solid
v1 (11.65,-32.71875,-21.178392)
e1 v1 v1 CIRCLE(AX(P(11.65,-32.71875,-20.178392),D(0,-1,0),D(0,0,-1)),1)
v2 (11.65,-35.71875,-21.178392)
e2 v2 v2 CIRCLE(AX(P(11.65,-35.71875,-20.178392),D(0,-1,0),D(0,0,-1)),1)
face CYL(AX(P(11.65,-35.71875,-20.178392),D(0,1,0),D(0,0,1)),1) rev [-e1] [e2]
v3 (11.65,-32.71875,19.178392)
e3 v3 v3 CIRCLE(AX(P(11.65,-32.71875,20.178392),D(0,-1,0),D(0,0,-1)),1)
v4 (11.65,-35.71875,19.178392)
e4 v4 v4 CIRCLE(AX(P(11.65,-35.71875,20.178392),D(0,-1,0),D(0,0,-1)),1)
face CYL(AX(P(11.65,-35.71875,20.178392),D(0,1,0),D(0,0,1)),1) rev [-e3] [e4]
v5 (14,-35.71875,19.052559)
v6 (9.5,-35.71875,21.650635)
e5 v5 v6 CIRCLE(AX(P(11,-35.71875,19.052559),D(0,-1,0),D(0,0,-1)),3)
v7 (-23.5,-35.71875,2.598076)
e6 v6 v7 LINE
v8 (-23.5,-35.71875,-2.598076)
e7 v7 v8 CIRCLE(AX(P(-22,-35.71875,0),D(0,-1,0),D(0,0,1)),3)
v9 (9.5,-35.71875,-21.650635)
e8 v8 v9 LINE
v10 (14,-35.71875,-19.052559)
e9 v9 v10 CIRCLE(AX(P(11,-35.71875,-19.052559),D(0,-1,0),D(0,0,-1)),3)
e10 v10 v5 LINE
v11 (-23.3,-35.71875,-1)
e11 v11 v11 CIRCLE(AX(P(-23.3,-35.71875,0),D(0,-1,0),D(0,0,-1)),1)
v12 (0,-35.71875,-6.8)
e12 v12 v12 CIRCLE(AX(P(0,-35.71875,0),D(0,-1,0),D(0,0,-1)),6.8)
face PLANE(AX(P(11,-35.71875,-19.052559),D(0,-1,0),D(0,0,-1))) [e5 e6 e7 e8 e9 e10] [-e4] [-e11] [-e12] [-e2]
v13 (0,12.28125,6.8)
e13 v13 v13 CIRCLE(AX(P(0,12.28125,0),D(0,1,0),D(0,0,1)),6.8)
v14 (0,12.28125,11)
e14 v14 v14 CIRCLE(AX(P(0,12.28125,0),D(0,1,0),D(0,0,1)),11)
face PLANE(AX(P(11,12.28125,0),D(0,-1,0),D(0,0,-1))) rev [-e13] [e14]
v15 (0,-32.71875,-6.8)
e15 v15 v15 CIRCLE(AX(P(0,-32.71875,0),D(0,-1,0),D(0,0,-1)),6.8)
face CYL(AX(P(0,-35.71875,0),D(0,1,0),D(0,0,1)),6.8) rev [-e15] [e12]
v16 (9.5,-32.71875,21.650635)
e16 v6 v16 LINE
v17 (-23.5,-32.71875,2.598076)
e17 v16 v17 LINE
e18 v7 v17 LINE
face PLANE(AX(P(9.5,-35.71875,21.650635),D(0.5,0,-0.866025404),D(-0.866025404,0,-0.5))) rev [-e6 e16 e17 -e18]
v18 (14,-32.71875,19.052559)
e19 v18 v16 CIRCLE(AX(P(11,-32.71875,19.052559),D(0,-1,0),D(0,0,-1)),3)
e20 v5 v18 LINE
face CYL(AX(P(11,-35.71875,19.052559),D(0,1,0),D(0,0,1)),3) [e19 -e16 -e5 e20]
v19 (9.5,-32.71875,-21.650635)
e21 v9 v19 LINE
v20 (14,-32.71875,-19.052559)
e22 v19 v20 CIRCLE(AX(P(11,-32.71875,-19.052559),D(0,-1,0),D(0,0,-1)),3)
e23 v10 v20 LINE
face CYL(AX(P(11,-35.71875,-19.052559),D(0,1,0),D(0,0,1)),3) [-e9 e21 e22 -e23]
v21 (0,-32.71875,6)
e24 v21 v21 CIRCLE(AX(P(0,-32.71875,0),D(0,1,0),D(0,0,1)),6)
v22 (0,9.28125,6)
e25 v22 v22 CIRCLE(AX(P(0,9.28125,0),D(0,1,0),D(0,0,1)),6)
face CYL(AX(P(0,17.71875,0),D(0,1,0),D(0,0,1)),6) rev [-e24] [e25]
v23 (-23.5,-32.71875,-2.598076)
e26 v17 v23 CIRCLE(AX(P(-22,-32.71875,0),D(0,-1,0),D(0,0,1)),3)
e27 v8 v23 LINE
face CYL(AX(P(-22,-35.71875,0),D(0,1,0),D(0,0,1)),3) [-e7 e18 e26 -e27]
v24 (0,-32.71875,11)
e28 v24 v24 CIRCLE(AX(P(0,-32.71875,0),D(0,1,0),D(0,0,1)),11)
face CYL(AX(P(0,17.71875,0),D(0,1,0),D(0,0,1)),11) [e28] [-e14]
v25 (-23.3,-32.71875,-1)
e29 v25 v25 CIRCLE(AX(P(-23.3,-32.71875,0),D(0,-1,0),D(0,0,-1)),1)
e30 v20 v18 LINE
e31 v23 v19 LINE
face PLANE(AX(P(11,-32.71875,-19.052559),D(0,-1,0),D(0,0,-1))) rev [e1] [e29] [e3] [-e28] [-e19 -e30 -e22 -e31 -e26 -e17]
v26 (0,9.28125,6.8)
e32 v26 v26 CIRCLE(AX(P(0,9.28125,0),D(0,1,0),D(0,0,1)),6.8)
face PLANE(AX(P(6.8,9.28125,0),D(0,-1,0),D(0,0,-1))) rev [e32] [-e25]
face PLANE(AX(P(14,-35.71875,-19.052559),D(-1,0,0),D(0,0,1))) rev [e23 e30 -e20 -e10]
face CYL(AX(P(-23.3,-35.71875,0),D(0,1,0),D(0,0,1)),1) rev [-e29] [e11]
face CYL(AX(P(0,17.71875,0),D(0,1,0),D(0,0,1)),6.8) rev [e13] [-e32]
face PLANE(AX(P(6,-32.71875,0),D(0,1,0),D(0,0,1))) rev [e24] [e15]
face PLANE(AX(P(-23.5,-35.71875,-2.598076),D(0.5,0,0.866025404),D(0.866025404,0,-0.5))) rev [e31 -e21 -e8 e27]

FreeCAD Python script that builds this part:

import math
import FreeCAD as App
import Part
import Sketcher
from FreeCAD import Vector
Q = App.Units.Quantity

doc = App.newDocument("Part")
body = doc.addObject("PartDesign::Body", "Body")

# Sketch on XY plane
sketch1 = body.newObject("Sketcher::SketchObject", "Sketch")
sketch1.AttachmentSupport = (doc.getObject("XY_Plane"), [""])
sketch1.MapMode = "FlatFace"
sketch1.addGeometry(Part.LineSegment(Vector(11, 12.3, 0), Vector(6.8, 12.3, 0)), False)
sketch1.addGeometry(Part.LineSegment(Vector(6.8, 12.3, 0), Vector(6.8, 9.3, 0)), False)
sketch1.addGeometry(Part.LineSegment(Vector(6.8, 9.3, 0), Vector(6, 9.3, 0)), False)
sketch1.addGeometry(Part.LineSegment(Vector(6, 9.3, 0), Vector(6, -32.7, 0)), False)
sketch1.addGeometry(Part.LineSegment(Vector(6, -32.7, 0), Vector(11, -32.7, 0)), False)
sketch1.addGeometry(Part.LineSegment(Vector(11, -32.7, 0), Vector(11, 12.3, 0)), False)
sketch1.addConstraint(Sketcher.Constraint("Coincident", 0, 2, 1, 1))
sketch1.addConstraint(Sketcher.Constraint("Coincident", 1, 2, 2, 1))
sketch1.addConstraint(Sketcher.Constraint("Coincident", 2, 2, 3, 1))
sketch1.addConstraint(Sketcher.Constraint("Coincident", 3, 2, 4, 1))
sketch1.addConstraint(Sketcher.Constraint("Coincident", 4, 2, 5, 1))
sketch1.addConstraint(Sketcher.Constraint("Coincident", 5, 2, 0, 1))
sketch1.addConstraint(Sketcher.Constraint("Horizontal", 0))
sketch1.addConstraint(Sketcher.Constraint("Vertical", 1))
sketch1.addConstraint(Sketcher.Constraint("Horizontal", 2))
sketch1.addConstraint(Sketcher.Constraint("Vertical", 3))
sketch1.addConstraint(Sketcher.Constraint("Horizontal", 4))
sketch1.addConstraint(Sketcher.Constraint("Vertical", 5))
sketch1.addConstraint(Sketcher.Constraint("DistanceX", 4, 1, 4, 2, Q("5 mm")))
sketch1.addConstraint(Sketcher.Constraint("DistanceY", 1, 2, 1, 1, Q("3 mm")))
sketch1.addConstraint(Sketcher.Constraint("DistanceY", 3, 2, 3, 1, Q("42 mm")))
sketch1.addConstraint(Sketcher.Constraint("DistanceX", 0, 2, 0, 1, Q("4.2 mm")))
sketch1.addConstraint(Sketcher.Constraint("DistanceX", -1, 1, 2, 2, Q("6 mm")))
sketch1.addConstraint(Sketcher.Constraint("DistanceY", -1, 1, 0, 2, Q("12.28125 mm")))
revolution = body.newObject("PartDesign::Revolution", "Revolution")
revolution.Profile = sketch1
revolution.ReferenceAxis = (sketch1, ["V_Axis"])
revolution.Angle = 360

# Sketch on XZ plane
sketch2 = body.newObject("Sketcher::SketchObject", "Sketch001")
sketch2.AttachmentSupport = (doc.getObject("XZ_Plane"), [""])
sketch2.MapMode = "FlatFace"
sketch2.AttachmentOffset = App.Placement(Vector(0, 0, 32.71875), App.Rotation())
sketch2.addGeometry(Part.LineSegment(Vector(-23.5, -2.6, 0), Vector(9.5, -21.7, 0)), False)
sketch2.addGeometry(Part.ArcOfCircle(Part.Circle(Vector(11, -19.1, 0), Vector(0, 0, 1), 3), math.radians(-120), math.radians(0)), False)
sketch2.addGeometry(Part.LineSegment(Vector(14, -19.1, 0), Vector(14, 19.1, 0)), False)
sketch2.addGeometry(Part.ArcOfCircle(Part.Circle(Vector(11, 19.1, 0), Vector(0, 0, 1), 3), math.radians(0), math.radians(120)), False)
sketch2.addGeometry(Part.LineSegment(Vector(9.5, 21.7, 0), Vector(-23.5, 2.6, 0)), False)
sketch2.addGeometry(Part.ArcOfCircle(Part.Circle(Vector(-22, 0, 0), Vector(0, 0, 1), 3), math.radians(120), math.radians(240)), False)
sketch2.addGeometry(Part.Circle(Vector(11.7, -20.2, 0), Vector(0, 0, 1), 1), False)
sketch2.addGeometry(Part.Circle(Vector(-23.3, 0, 0), Vector(0, 0, 1), 1), False)
sketch2.addGeometry(Part.Circle(Vector(0, 0, 0), Vector(0, 0, 1), 6.8), False)
sketch2.addGeometry(Part.Circle(Vector(11.7, 20.2, 0), Vector(0, 0, 1), 1), False)
sketch2.addConstraint(Sketcher.Constraint("Tangent", 0, 2, 1, 1))
sketch2.addConstraint(Sketcher.Constraint("Tangent", 1, 2, 2, 1))
sketch2.addConstraint(Sketcher.Constraint("Tangent", 2, 2, 3, 1))
sketch2.addConstraint(Sketcher.Constraint("Tangent", 3, 2, 4, 1))
sketch2.addConstraint(Sketcher.Constraint("Tangent", 4, 2, 5, 1))
sketch2.addConstraint(Sketcher.Constraint("Tangent", 5, 2, 0, 1))
sketch2.addConstraint(Sketcher.Constraint("Vertical", 2))
sketch2.addConstraint(Sketcher.Constraint("Coincident", 8, 3, -1, 1))
sketch2.addConstraint(Sketcher.Constraint("Equal", 1, 3))
sketch2.addConstraint(Sketcher.Constraint("Equal", 3, 5))
sketch2.addConstraint(Sketcher.Constraint("Equal", 6, 7))
sketch2.addConstraint(Sketcher.Constraint("Equal", 7, 9))
sketch2.addConstraint(Sketcher.Constraint("Symmetric", 6, 3, 9, 3, -1))
sketch2.addConstraint(Sketcher.Constraint("Symmetric", 0, 2, 3, 2, -1))
sketch2.addConstraint(Sketcher.Constraint("PointOnObject", 7, 3, -1))
sketch2.addConstraint(Sketcher.Constraint("Diameter", 6, Q("2 mm")))
sketch2.addConstraint(Sketcher.Constraint("Radius", 1, Q("3 mm")))
sketch2.addConstraint(Sketcher.Constraint("Diameter", 8, Q("13.6 mm")))
sketch2.addConstraint(Sketcher.Constraint("Angle", 0, Q("-30 deg")))
sketch2.addConstraint(Sketcher.Constraint("DistanceX", -1, 1, 1, 3, Q("11 mm")))
sketch2.addConstraint(Sketcher.Constraint("DistanceX", 5, 3, -1, 1, Q("22 mm")))
sketch2.addConstraint(Sketcher.Constraint("DistanceX", 7, 3, -1, 1, Q("23.3 mm")))
sketch2.addConstraint(Sketcher.Constraint("DistanceX", -1, 1, 6, 3, Q("11.65 mm")))
sketch2.addConstraint(Sketcher.Constraint("DistanceY", 6, 3, -1, 1, Q("20.178392 mm")))
pad1 = body.newObject("PartDesign::Pad", "Pad")
pad1.Profile = sketch2
pad1.Length = 3

doc.recompute()
